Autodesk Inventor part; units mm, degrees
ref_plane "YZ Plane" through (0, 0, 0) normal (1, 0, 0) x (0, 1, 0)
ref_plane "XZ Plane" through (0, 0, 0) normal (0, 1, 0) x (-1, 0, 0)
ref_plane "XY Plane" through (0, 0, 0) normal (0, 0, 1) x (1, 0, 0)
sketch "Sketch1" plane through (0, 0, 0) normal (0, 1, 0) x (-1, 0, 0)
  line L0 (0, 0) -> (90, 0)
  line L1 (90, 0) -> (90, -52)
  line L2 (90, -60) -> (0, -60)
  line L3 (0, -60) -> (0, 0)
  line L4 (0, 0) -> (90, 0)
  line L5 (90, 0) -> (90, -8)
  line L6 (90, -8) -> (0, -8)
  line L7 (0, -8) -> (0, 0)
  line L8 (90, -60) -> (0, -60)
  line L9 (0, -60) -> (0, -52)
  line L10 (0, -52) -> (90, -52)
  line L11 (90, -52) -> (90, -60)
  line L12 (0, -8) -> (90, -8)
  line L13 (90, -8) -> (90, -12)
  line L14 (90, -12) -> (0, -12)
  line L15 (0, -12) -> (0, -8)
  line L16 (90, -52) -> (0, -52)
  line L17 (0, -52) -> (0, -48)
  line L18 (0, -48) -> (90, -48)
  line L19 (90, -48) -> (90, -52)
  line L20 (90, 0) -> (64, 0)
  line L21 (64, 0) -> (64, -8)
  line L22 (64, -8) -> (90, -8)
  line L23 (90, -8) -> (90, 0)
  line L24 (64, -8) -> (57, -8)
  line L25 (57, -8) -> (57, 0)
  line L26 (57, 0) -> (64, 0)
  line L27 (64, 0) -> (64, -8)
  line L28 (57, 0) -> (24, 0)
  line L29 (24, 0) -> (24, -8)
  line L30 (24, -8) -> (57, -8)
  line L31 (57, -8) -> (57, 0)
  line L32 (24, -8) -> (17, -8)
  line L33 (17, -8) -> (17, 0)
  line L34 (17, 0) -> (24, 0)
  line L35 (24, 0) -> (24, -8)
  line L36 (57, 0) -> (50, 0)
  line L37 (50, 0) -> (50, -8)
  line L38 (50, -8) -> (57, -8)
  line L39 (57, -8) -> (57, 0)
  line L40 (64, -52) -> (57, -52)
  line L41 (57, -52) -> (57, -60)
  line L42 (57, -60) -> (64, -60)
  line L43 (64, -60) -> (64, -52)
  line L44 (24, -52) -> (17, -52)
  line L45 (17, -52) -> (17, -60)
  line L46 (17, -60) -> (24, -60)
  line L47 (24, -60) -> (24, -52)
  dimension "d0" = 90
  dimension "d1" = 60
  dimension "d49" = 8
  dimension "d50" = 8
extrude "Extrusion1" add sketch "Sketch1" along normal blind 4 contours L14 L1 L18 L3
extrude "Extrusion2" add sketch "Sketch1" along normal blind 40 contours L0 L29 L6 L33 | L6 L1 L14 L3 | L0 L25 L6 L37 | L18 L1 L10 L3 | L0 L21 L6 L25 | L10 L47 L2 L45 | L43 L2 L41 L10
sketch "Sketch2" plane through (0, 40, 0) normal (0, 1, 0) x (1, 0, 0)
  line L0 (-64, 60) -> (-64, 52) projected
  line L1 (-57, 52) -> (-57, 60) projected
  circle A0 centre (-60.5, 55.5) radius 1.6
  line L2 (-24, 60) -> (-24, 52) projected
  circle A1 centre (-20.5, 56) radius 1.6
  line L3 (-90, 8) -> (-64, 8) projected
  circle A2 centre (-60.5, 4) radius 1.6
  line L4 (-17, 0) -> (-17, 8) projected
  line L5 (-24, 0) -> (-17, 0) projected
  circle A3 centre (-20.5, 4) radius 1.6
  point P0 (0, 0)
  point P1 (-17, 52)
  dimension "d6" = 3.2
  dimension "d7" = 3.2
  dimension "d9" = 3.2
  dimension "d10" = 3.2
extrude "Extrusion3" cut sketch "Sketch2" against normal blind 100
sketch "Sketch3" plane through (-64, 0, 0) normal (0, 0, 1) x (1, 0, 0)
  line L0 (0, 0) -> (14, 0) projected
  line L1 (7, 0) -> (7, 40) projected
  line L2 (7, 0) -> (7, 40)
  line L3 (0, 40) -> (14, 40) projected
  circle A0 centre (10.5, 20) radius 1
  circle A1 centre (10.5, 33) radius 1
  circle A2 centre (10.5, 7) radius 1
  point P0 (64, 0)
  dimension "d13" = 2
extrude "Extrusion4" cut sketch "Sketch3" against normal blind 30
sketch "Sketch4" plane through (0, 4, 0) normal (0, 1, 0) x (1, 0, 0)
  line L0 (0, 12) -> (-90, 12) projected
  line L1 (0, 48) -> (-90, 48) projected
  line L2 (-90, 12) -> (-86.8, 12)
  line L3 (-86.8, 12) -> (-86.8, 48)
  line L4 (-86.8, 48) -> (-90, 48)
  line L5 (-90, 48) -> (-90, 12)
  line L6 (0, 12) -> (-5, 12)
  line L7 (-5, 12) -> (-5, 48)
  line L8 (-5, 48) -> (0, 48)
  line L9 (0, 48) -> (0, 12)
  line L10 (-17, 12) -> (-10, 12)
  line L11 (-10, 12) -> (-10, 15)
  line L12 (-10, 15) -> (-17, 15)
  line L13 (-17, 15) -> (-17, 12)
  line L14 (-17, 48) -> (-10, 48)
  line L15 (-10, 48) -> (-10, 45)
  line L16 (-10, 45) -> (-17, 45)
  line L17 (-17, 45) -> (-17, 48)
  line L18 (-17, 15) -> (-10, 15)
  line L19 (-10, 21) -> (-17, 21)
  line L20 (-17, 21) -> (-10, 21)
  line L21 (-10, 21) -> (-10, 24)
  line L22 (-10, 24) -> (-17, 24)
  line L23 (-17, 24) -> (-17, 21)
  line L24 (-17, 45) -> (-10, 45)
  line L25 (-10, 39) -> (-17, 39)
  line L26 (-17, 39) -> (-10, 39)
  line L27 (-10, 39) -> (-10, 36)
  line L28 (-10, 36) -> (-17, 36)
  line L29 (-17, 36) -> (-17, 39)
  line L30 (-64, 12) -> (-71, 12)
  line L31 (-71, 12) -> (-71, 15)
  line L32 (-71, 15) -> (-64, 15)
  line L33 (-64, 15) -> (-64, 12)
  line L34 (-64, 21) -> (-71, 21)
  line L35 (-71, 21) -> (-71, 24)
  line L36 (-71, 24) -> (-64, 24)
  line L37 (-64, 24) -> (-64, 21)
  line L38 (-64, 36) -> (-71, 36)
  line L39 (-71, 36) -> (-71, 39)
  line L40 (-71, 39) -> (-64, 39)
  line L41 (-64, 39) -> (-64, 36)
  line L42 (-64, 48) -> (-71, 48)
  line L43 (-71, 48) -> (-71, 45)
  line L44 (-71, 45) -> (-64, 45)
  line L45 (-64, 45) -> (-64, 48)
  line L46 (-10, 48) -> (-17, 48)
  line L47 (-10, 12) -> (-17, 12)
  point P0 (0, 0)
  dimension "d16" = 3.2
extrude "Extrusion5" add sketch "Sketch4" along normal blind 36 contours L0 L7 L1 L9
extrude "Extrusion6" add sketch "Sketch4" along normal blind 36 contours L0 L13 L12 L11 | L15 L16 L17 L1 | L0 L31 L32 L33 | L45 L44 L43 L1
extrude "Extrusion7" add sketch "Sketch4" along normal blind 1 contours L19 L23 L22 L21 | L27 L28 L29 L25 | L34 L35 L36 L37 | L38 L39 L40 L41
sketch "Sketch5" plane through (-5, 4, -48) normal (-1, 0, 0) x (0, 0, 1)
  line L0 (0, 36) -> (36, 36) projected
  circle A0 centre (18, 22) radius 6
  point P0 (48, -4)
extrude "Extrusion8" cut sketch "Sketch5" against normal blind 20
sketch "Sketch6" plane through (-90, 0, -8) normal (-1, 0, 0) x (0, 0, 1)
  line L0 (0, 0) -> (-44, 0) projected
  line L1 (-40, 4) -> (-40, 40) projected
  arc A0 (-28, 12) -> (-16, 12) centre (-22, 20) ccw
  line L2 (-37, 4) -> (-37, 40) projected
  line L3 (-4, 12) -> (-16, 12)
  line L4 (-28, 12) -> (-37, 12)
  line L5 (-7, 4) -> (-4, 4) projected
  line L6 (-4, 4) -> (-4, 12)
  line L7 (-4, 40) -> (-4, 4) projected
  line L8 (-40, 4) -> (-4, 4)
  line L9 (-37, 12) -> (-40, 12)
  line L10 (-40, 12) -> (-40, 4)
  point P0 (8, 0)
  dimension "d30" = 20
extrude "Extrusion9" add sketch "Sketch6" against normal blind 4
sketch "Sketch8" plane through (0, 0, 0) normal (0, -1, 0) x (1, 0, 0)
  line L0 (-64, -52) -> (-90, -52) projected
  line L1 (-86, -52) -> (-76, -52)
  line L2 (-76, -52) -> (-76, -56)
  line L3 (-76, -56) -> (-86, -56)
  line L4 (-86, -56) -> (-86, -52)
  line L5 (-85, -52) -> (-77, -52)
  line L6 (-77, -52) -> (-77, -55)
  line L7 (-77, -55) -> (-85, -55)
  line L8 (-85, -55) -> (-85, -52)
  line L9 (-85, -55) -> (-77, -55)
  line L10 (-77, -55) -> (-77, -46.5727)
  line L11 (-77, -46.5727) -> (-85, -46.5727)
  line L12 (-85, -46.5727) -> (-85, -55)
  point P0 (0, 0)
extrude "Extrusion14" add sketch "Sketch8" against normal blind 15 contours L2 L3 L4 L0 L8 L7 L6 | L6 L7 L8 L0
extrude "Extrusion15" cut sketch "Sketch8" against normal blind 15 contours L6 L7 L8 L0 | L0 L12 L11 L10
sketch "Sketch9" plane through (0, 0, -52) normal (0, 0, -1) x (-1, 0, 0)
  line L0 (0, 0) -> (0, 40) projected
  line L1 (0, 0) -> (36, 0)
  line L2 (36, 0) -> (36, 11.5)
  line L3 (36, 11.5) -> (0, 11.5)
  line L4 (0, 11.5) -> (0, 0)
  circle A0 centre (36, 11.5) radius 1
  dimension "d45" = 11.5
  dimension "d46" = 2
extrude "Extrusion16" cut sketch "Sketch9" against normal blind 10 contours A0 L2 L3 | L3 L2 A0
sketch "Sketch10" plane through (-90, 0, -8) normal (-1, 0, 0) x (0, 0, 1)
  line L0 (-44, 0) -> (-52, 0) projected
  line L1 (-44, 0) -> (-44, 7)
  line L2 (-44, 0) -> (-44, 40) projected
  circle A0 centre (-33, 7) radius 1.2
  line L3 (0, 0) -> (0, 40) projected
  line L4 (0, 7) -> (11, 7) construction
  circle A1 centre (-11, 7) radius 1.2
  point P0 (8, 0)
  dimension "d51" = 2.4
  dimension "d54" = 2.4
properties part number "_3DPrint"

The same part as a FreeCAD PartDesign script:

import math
import FreeCAD as App
import Part
import Sketcher
Q = App.Units.Quantity


def add_polygon(sketch, points):
    """Adds a closed chain of lines whose ends are joined by coincident constraints."""
    first, n = sketch.GeometryCount, len(points)
    for a, b in zip(points, points[1:] + points[:1]):
        sketch.addGeometry(Part.LineSegment(App.Vector(*a, 0), App.Vector(*b, 0)), False)
    for i in range(n):
        sketch.addConstraint(Sketcher.Constraint("Coincident", first + i, 2, first + (i + 1) % n, 1))

doc = App.newDocument("Part")
body = doc.addObject("PartDesign::Body", "Body")

# Sketch on XZ plane
sketch1 = body.newObject("Sketcher::SketchObject", "Sketch")
sketch1.AttachmentSupport = (doc.getObject("XZ_Plane"), [""])
sketch1.MapMode = "FlatFace"
add_polygon(sketch1, [(-90, -12), (0, -12), (0, -48), (-90, -48)])  # lines 0-3
sketch1.addConstraint([
    Sketcher.Constraint("Horizontal", 0),
    Sketcher.Constraint("Vertical", 1),
    Sketcher.Constraint("Horizontal", 2),
    Sketcher.Constraint("Vertical", 3),
    Sketcher.Constraint("PointOnObject", 0, 2, -2),
    Sketcher.Constraint("DistanceX", 0, 1, 0, 2, Q("90 mm")),
    Sketcher.Constraint("DistanceY", 1, 2, 1, 1, Q("36 mm")),
    Sketcher.Constraint("DistanceY", 0, 2, -1, 1, Q("12 mm")),
])
pad1 = body.newObject("PartDesign::Pad", "Pad")
pad1.Profile = sketch1
pad1.Length = 4
pad1.Reversed = True

# Sketch on XZ plane
sketch2 = body.newObject("Sketcher::SketchObject", "Sketch001")
sketch2.AttachmentSupport = (doc.getObject("XZ_Plane"), [""])
sketch2.MapMode = "FlatFace"
add_polygon(sketch2, [(-24, 0), (-17, 0), (-17, -8), (0, -8), (0, -12), (-90, -12), (-90, -8), (-64, -8), (-64, 0), (-50, 0), (-50, -8), (-24, -8)])  # lines 0-11
add_polygon(sketch2, [(-90, -48), (0, -48), (0, -52), (-17, -52), (-17, -60), (-24, -60), (-24, -52), (-57, -52), (-57, -60), (-64, -60), (-64, -52), (-90, -52)])  # lines 12-23
sketch2.addConstraint([
    Sketcher.Constraint("Horizontal", 0),
    Sketcher.Constraint("Vertical", 1),
    Sketcher.Constraint("Horizontal", 2),
    Sketcher.Constraint("Vertical", 3),
    Sketcher.Constraint("Horizontal", 4),
    Sketcher.Constraint("Vertical", 5),
    Sketcher.Constraint("Horizontal", 6),
    Sketcher.Constraint("Vertical", 7),
    Sketcher.Constraint("Horizontal", 8),
    Sketcher.Constraint("Vertical", 9),
    Sketcher.Constraint("Horizontal", 10),
    Sketcher.Constraint("Vertical", 11),
    Sketcher.Constraint("Horizontal", 12),
    Sketcher.Constraint("Vertical", 13),
    Sketcher.Constraint("Horizontal", 14),
    Sketcher.Constraint("Vertical", 15),
    Sketcher.Constraint("Horizontal", 16),
    Sketcher.Constraint("Vertical", 17),
    Sketcher.Constraint("Horizontal", 18),
    Sketcher.Constraint("Vertical", 19),
    Sketcher.Constraint("Horizontal", 20),
    Sketcher.Constraint("Vertical", 21),
    Sketcher.Constraint("Horizontal", 22),
    Sketcher.Constraint("Vertical", 23),
    Sketcher.Constraint("PointOnObject", 0, 2, -1),
    Sketcher.Constraint("PointOnObject", 2, 2, -2),
    Sketcher.Constraint("PointOnObject", 7, 2, -1),
    Sketcher.Constraint("PointOnObject", 12, 2, -2),
    Sketcher.Constraint("Horizontal", 2, 2, 5, 2),
    Sketcher.Constraint("Horizontal", 6, 2, 9, 2),
    Sketcher.Constraint("Horizontal", 14, 2, 17, 2),
    Sketcher.Constraint("Horizontal", 16, 2, 19, 2),
    Sketcher.Constraint("Horizontal", 18, 2, 21, 2),
    Sketcher.Constraint("Vertical", 1, 2, 14, 2),
    Sketcher.Constraint("Vertical", 11, 2, 16, 2),
    Sketcher.Constraint("Vertical", 7, 2, 20, 2),
    Sketcher.Constraint("Vertical", 5, 2, 22, 2),
    Sketcher.Constraint("Equal", 6, 10),
    Sketcher.Constraint("Equal", 16, 20),
    Sketcher.Constraint("Equal", 5, 13),
    Sketcher.Constraint("Equal", 11, 15),
    Sketcher.Constraint("DistanceX", 4, 2, 4, 1, Q("90 mm")),
    Sketcher.Constraint("DistanceY", 1, 2, 1, 1, Q("8 mm")),
    Sketcher.Constraint("DistanceY", 15, 2, -1, 1, Q("60 mm")),
    Sketcher.Constraint("DistanceX", 0, 1, 0, 2, Q("7 mm")),
    Sketcher.Constraint("DistanceX", 2, 1, 2, 2, Q("17 mm")),
    Sketcher.Constraint("DistanceX", 6, 1, 6, 2, Q("26 mm")),
    Sketcher.Constraint("DistanceY", 3, 2, 3, 1, Q("4 mm")),
])
pad2 = body.newObject("PartDesign::Pad", "Pad001")
pad2.Profile = sketch2
pad2.Length = 40
pad2.Reversed = True

# Sketch on XZ plane
sketch3 = body.newObject("Sketcher::SketchObject", "Sketch002")
sketch3.AttachmentSupport = (doc.getObject("XZ_Plane"), [""])
sketch3.MapMode = "FlatFace"
sketch3.AttachmentOffset = App.Placement(App.Vector(0, 0, -40), App.Rotation())
sketch3.addGeometry([
    Part.Circle(App.Vector(-60.5, -55.5, 0), App.Vector(0, 0, 1), 1.6),
    Part.Circle(App.Vector(-20.5, -56, 0), App.Vector(0, 0, 1), 1.6),
    Part.Circle(App.Vector(-60.5, -4, 0), App.Vector(0, 0, 1), 1.6),
    Part.Circle(App.Vector(-20.5, -4, 0), App.Vector(0, 0, 1), 1.6),
], False)
sketch3.addConstraint([
    Sketcher.Constraint("Equal", 0, 1),
    Sketcher.Constraint("Equal", 1, 2),
    Sketcher.Constraint("Equal", 2, 3),
    Sketcher.Constraint("Horizontal", 2, 3, 3, 3),
    Sketcher.Constraint("Vertical", 0, 3, 2, 3),
    Sketcher.Constraint("Vertical", 1, 3, 3, 3),
    Sketcher.Constraint("Diameter", 0, Q("3.2 mm")),
    Sketcher.Constraint("DistanceY", 1, 3, -1, 1, Q("56 mm")),
    Sketcher.Constraint("DistanceY", 2, 3, -1, 1, Q("4 mm")),
    Sketcher.Constraint("DistanceX", 0, 3, 1, 3, Q("40 mm")),
    Sketcher.Constraint("DistanceX", 0, 3, -1, 1, Q("60.5 mm")),
    Sketcher.Constraint("DistanceY", 0, 3, -1, 1, Q("55.5 mm")),
])
pocket1 = body.newObject("PartDesign::Pocket", "Pocket")
pocket1.Profile = sketch3
pocket1.Length = 100
pocket1.Reversed = True

# Sketch on XY plane
sketch4 = body.newObject("Sketcher::SketchObject", "Sketch003")
sketch4.AttachmentSupport = (doc.getObject("XY_Plane"), [""])
sketch4.MapMode = "FlatFace"
sketch4.addGeometry([
    Part.Circle(App.Vector(-53.5, 20, 0), App.Vector(0, 0, 1), 1),
    Part.Circle(App.Vector(-53.5, 33, 0), App.Vector(0, 0, 1), 1),
    Part.Circle(App.Vector(-53.5, 7, 0), App.Vector(0, 0, 1), 1),
], False)
sketch4.addConstraint([
    Sketcher.Constraint("Equal", 0, 1),
    Sketcher.Constraint("Equal", 1, 2),
    Sketcher.Constraint("Vertical", 0, 3, 1, 3),
    Sketcher.Constraint("Vertical", 1, 3, 2, 3),
    Sketcher.Constraint("Diameter", 0, Q("2 mm")),
    Sketcher.Constraint("DistanceY", -1, 1, 0, 3, Q("20 mm")),
    Sketcher.Constraint("DistanceY", -1, 1, 1, 3, Q("33 mm")),
    Sketcher.Constraint("DistanceY", -1, 1, 2, 3, Q("7 mm")),
    Sketcher.Constraint("DistanceX", 0, 3, -1, 1, Q("53.5 mm")),
])
pocket2 = body.newObject("PartDesign::Pocket", "Pocket001")
pocket2.Profile = sketch4
pocket2.Length = 30

# Sketch on XZ plane
sketch5 = body.newObject("Sketcher::SketchObject", "Sketch004")
sketch5.AttachmentSupport = (doc.getObject("XZ_Plane"), [""])
sketch5.MapMode = "FlatFace"
sketch5.AttachmentOffset = App.Placement(App.Vector(0, 0, -4), App.Rotation())
add_polygon(sketch5, [(-5, -12), (0, -12), (0, -48), (-5, -48)])  # lines 0-3
sketch5.addConstraint([
    Sketcher.Constraint("Horizontal", 0),
    Sketcher.Constraint("Vertical", 1),
    Sketcher.Constraint("Horizontal", 2),
    Sketcher.Constraint("Vertical", 3),
    Sketcher.Constraint("PointOnObject", 0, 2, -2),
    Sketcher.Constraint("DistanceX", 0, 1, 0, 2, Q("5 mm")),
    Sketcher.Constraint("DistanceY", 1, 2, 1, 1, Q("36 mm")),
    Sketcher.Constraint("DistanceY", 0, 2, -1, 1, Q("12 mm")),
])
pad3 = body.newObject("PartDesign::Pad", "Pad002")
pad3.Profile = sketch5
pad3.Length = 36
pad3.Reversed = True

# Sketch on XZ plane
sketch6 = body.newObject("Sketcher::SketchObject", "Sketch005")
sketch6.AttachmentSupport = (doc.getObject("XZ_Plane"), [""])
sketch6.MapMode = "FlatFace"
sketch6.AttachmentOffset = App.Placement(App.Vector(0, 0, -4), App.Rotation())
add_polygon(sketch6, [(-17, -12), (-10, -12), (-10, -15), (-17, -15)])  # lines 0-3
add_polygon(sketch6, [(-10, -45), (-10, -48), (-17, -48), (-17, -45)])  # lines 4-7
add_polygon(sketch6, [(-71, -12), (-64, -12), (-64, -15), (-71, -15)])  # lines 8-11
add_polygon(sketch6, [(-64, -45), (-64, -48), (-71, -48), (-71, -45)])  # lines 12-15
sketch6.addConstraint([
    Sketcher.Constraint("Horizontal", 0),
    Sketcher.Constraint("Vertical", 1),
    Sketcher.Constraint("Horizontal", 2),
    Sketcher.Constraint("Vertical", 3),
    Sketcher.Constraint("Vertical", 4),
    Sketcher.Constraint("Horizontal", 5),
    Sketcher.Constraint("Vertical", 6),
    Sketcher.Constraint("Horizontal", 7),
    Sketcher.Constraint("Horizontal", 8),
    Sketcher.Constraint("Vertical", 9),
    Sketcher.Constraint("Horizontal", 10),
    Sketcher.Constraint("Vertical", 11),
    Sketcher.Constraint("Vertical", 12),
    Sketcher.Constraint("Horizontal", 13),
    Sketcher.Constraint("Vertical", 14),
    Sketcher.Constraint("Horizontal", 15),
    Sketcher.Constraint("Horizontal", 3, 2, 8, 2),
    Sketcher.Constraint("Horizontal", 2, 2, 9, 2),
    Sketcher.Constraint("Horizontal", 5, 2, 12, 2),
    Sketcher.Constraint("Horizontal", 7, 2, 14, 2),
    Sketcher.Constraint("Vertical", 1, 2, 4, 2),
    Sketcher.Constraint("Vertical", 3, 2, 5, 2),
    Sketcher.Constraint("Vertical", 9, 2, 12, 2),
    Sketcher.Constraint("Vertical", 11, 2, 13, 2),
    Sketcher.Constraint("Equal", 7, 8),
    Sketcher.Constraint("Equal", 3, 4),
    Sketcher.Constraint("DistanceX", 0, 1, 0, 2, Q("7 mm")),
    Sketcher.Constraint("DistanceY", 1, 2, 1, 1, Q("3 mm")),
    Sketcher.Constraint("DistanceX", 0, 2, -1, 1, Q("10 mm")),
    Sketcher.Constraint("DistanceY", 0, 2, -1, 1, Q("12 mm")),
    Sketcher.Constraint("DistanceY", 4, 2, -1, 1, Q("48 mm")),
    Sketcher.Constraint("DistanceX", 8, 2, -1, 1, Q("64 mm")),
])
pad4 = body.newObject("PartDesign::Pad", "Pad003")
pad4.Profile = sketch6
pad4.Length = 36
pad4.Reversed = True

# Sketch on XZ plane
sketch7 = body.newObject("Sketcher::SketchObject", "Sketch006")
sketch7.AttachmentSupport = (doc.getObject("XZ_Plane"), [""])
sketch7.MapMode = "FlatFace"
sketch7.AttachmentOffset = App.Placement(App.Vector(0, 0, -4), App.Rotation())
add_polygon(sketch7, [(-17, -21), (-10, -21), (-10, -24), (-17, -24)])  # lines 0-3
add_polygon(sketch7, [(-10, -36), (-10, -39), (-17, -39), (-17, -36)])  # lines 4-7
add_polygon(sketch7, [(-71, -21), (-64, -21), (-64, -24), (-71, -24)])  # lines 8-11
add_polygon(sketch7, [(-71, -36), (-64, -36), (-64, -39), (-71, -39)])  # lines 12-15
sketch7.addConstraint([
    Sketcher.Constraint("Horizontal", 0),
    Sketcher.Constraint("Vertical", 1),
    Sketcher.Constraint("Horizontal", 2),
    Sketcher.Constraint("Vertical", 3),
    Sketcher.Constraint("Vertical", 4),
    Sketcher.Constraint("Horizontal", 5),
    Sketcher.Constraint("Vertical", 6),
    Sketcher.Constraint("Horizontal", 7),
    Sketcher.Constraint("Horizontal", 8),
    Sketcher.Constraint("Vertical", 9),
    Sketcher.Constraint("Horizontal", 10),
    Sketcher.Constraint("Vertical", 11),
    Sketcher.Constraint("Horizontal", 12),
    Sketcher.Constraint("Vertical", 13),
    Sketcher.Constraint("Horizontal", 14),
    Sketcher.Constraint("Vertical", 15),
    Sketcher.Constraint("Horizontal", 3, 2, 8, 2),
    Sketcher.Constraint("Horizontal", 2, 2, 9, 2),
    Sketcher.Constraint("Horizontal", 7, 2, 12, 2),
    Sketcher.Constraint("Horizontal", 5, 2, 13, 2),
    Sketcher.Constraint("Vertical", 1, 2, 4, 2),
    Sketcher.Constraint("Vertical", 3, 2, 5, 2),
    Sketcher.Constraint("Vertical", 9, 2, 12, 2),
    Sketcher.Constraint("Vertical", 11, 2, 14, 2),
    Sketcher.Constraint("Equal", 7, 8),
    Sketcher.Constraint("Equal", 3, 4),
    Sketcher.Constraint("DistanceX", 0, 1, 0, 2, Q("7 mm")),
    Sketcher.Constraint("DistanceY", 1, 2, 1, 1, Q("3 mm")),
    Sketcher.Constraint("DistanceX", 0, 2, -1, 1, Q("10 mm")),
    Sketcher.Constraint("DistanceY", 0, 2, -1, 1, Q("21 mm")),
    Sketcher.Constraint("DistanceY", 4, 2, -1, 1, Q("39 mm")),
    Sketcher.Constraint("DistanceX", 8, 2, -1, 1, Q("64 mm")),
])
pad5 = body.newObject("PartDesign::Pad", "Pad004")
pad5.Profile = sketch7
pad5.Length = 1
pad5.Reversed = True

# Sketch on YZ plane
sketch8 = body.newObject("Sketcher::SketchObject", "Sketch007")
sketch8.AttachmentSupport = (doc.getObject("YZ_Plane"), [""])
sketch8.MapMode = "FlatFace"
sketch8.AttachmentOffset = App.Placement(App.Vector(0, 0, -5), App.Rotation())
sketch8.addGeometry(Part.Circle(App.Vector(26, -30, 0), App.Vector(0, 0, 1), 6), False)
sketch8.addConstraint([
    Sketcher.Constraint("Diameter", 0, Q("12 mm")),
    Sketcher.Constraint("DistanceX", -1, 1, 0, 3, Q("26 mm")),
    Sketcher.Constraint("DistanceY", 0, 3, -1, 1, Q("30 mm")),
])
pocket3 = body.newObject("PartDesign::Pocket", "Pocket002")
pocket3.Profile = sketch8
pocket3.Length = 20
pocket3.Reversed = True

# Sketch on YZ plane
sketch9 = body.newObject("Sketcher::SketchObject", "Sketch008")
sketch9.AttachmentSupport = (doc.getObject("YZ_Plane"), [""])
sketch9.MapMode = "FlatFace"
sketch9.AttachmentOffset = App.Placement(App.Vector(0, 0, -90), App.Rotation())
sketch9.addGeometry([
    Part.LineSegment(App.Vector(12, -48, 0), App.Vector(4, -48, 0)),  # 0
    Part.LineSegment(App.Vector(4, -48, 0), App.Vector(4, -12, 0)),  # 1
    Part.LineSegment(App.Vector(4, -12, 0), App.Vector(12, -12, 0)),  # 2
    Part.LineSegment(App.Vector(12, -12, 0), App.Vector(12, -24, 0)),  # 3
    Part.ArcOfCircle(Part.Circle(App.Vector(20, -30, 0), App.Vector(0, 0, 1), 10), math.radians(143), math.radians(217)),  # 4
    Part.LineSegment(App.Vector(12, -36, 0), App.Vector(12, -48, 0)),  # 5
], False)
sketch9.addConstraint([
    Sketcher.Constraint("Coincident", 0, 2, 1, 1),
    Sketcher.Constraint("Coincident", 1, 2, 2, 1),
    Sketcher.Constraint("Coincident", 2, 2, 3, 1),
    Sketcher.Constraint("Coincident", 3, 2, 4, 1),
    Sketcher.Constraint("Coincident", 4, 2, 5, 1),
    Sketcher.Constraint("Coincident", 5, 2, 0, 1),
    Sketcher.Constraint("Horizontal", 0),
    Sketcher.Constraint("Vertical", 1),
    Sketcher.Constraint("Horizontal", 2),
    Sketcher.Constraint("Vertical", 3),
    Sketcher.Constraint("Vertical", 5),
    Sketcher.Constraint("Vertical", 3, 2, 4, 2),
    Sketcher.Constraint("Equal", 3, 5),
    Sketcher.Constraint("Radius", 4, Q("10 mm")),
    Sketcher.Constraint("DistanceX", -1, 1, 4, 3, Q("20 mm")),
    Sketcher.Constraint("DistanceX", 0, 2, 0, 1, Q("8 mm")),
    Sketcher.Constraint("DistanceY", 1, 1, 1, 2, Q("36 mm")),
    Sketcher.Constraint("DistanceY", 3, 2, 3, 1, Q("12 mm")),
    Sketcher.Constraint("DistanceY", 4, 3, -1, 1, Q("30 mm")),
])
pad6 = body.newObject("PartDesign::Pad", "Pad005")
pad6.Profile = sketch9
pad6.Length = 4

# Sketch on XZ plane
sketch10 = body.newObject("Sketcher::SketchObject", "Sketch009")
sketch10.AttachmentSupport = (doc.getObject("XZ_Plane"), [""])
sketch10.MapMode = "FlatFace"
add_polygon(sketch10, [(-76, -56), (-76, -52), (-86, -52), (-86, -56)])  # lines 0-3
sketch10.addConstraint([
    Sketcher.Constraint("Vertical", 0),
    Sketcher.Constraint("Horizontal", 1),
    Sketcher.Constraint("Vertical", 2),
    Sketcher.Constraint("Horizontal", 3),
    Sketcher.Constraint("DistanceX", 1, 2, 1, 1, Q("10 mm")),
    Sketcher.Constraint("DistanceY", 0, 1, 0, 2, Q("4 mm")),
    Sketcher.Constraint("DistanceX", 0, 2, -1, 1, Q("76 mm")),
    Sketcher.Constraint("DistanceY", 0, 2, -1, 1, Q("52 mm")),
])
pad7 = body.newObject("PartDesign::Pad", "Pad006")
pad7.Profile = sketch10
pad7.Length = 15
pad7.Reversed = True

# Sketch on XZ plane
sketch11 = body.newObject("Sketcher::SketchObject", "Sketch010")
sketch11.AttachmentSupport = (doc.getObject("XZ_Plane"), [""])
sketch11.MapMode = "FlatFace"
add_polygon(sketch11, [(-77, -55), (-77, -47), (-85, -47), (-85, -55)])  # lines 0-3
sketch11.addConstraint([
    Sketcher.Constraint("Vertical", 0),
    Sketcher.Constraint("Horizontal", 1),
    Sketcher.Constraint("Vertical", 2),
    Sketcher.Constraint("Horizontal", 3),
    Sketcher.Constraint("DistanceX", 1, 2, 1, 1, Q("8 mm")),
    Sketcher.Constraint("DistanceX", 0, 2, -1, 1, Q("77 mm")),
    Sketcher.Constraint("DistanceY", 2, 2, -1, 1, Q("55 mm")),
    Sketcher.Constraint("DistanceY", 0, 1, 0, 2, Q("8.4273 mm")),
])
pocket4 = body.newObject("PartDesign::Pocket", "Pocket003")
pocket4.Profile = sketch11
pocket4.Length = 15

# Sketch on XY plane
sketch12 = body.newObject("Sketcher::SketchObject", "Sketch011")
sketch12.AttachmentSupport = (doc.getObject("XY_Plane"), [""])
sketch12.MapMode = "FlatFace"
sketch12.AttachmentOffset = App.Placement(App.Vector(0, 0, -52), App.Rotation())
sketch12.addGeometry(Part.Circle(App.Vector(-36, 11.5, 0), App.Vector(0, 0, 1), 1), False)
sketch12.addConstraint([
    Sketcher.Constraint("Diameter", 0, Q("2 mm")),
    Sketcher.Constraint("DistanceY", -1, 1, 0, 3, Q("11.5 mm")),
    Sketcher.Constraint("DistanceX", 0, 3, -1, 1, Q("36 mm")),
])
pocket5 = body.newObject("PartDesign::Pocket", "Pocket004")
pocket5.Profile = sketch12
pocket5.Length = 10
pocket5.Reversed = True

doc.recompute()
